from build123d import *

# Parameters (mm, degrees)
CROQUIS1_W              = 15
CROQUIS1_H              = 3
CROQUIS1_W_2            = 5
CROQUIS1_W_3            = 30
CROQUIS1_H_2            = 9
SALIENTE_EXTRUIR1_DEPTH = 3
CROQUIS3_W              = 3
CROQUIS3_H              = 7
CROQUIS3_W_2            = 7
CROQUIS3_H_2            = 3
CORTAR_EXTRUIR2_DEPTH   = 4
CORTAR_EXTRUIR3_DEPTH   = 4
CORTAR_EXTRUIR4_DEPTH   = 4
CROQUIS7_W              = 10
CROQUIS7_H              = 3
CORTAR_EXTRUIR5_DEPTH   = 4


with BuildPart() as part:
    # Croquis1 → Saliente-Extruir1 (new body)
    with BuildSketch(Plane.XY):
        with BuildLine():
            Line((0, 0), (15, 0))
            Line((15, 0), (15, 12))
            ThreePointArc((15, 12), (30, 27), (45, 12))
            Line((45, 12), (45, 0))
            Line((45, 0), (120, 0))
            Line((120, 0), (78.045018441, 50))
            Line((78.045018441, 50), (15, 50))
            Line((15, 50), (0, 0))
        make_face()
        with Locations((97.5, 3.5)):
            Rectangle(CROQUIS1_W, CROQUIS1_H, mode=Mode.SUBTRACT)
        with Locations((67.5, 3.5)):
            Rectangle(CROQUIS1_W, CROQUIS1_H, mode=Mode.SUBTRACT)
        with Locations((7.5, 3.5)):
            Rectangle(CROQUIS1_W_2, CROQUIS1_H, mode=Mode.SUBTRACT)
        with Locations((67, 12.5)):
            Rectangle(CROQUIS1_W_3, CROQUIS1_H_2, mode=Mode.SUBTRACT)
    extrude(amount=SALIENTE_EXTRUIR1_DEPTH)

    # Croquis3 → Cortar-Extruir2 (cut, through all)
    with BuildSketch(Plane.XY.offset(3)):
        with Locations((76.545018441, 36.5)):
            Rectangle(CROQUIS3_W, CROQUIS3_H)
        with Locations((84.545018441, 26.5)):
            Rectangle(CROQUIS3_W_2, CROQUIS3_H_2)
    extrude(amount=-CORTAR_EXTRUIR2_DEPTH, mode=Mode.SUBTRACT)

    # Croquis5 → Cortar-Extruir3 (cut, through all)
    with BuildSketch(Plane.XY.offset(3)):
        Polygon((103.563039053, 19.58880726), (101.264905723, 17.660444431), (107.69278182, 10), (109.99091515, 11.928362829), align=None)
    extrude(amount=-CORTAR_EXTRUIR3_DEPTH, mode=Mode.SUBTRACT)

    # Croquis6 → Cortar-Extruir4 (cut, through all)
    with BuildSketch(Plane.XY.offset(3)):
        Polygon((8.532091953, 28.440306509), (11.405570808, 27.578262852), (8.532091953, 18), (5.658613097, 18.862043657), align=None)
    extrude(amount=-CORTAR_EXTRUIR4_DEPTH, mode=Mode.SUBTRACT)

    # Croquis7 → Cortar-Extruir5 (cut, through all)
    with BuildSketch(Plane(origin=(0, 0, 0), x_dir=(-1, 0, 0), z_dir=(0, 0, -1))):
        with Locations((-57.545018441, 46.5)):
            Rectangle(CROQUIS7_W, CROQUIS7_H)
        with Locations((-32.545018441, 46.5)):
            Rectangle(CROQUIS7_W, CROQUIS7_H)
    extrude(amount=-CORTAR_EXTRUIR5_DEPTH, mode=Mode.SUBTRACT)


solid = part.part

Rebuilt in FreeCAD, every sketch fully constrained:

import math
import FreeCAD as App
import Part
import Sketcher

V = App.Vector
Q = App.Units.Quantity


def add_polygon(sketch, points):
    """Adds a closed chain of lines whose ends are joined by coincident constraints."""
    first, n = sketch.GeometryCount, len(points)
    for a, b in zip(points, points[1:] + points[:1]):
        sketch.addGeometry(Part.LineSegment(App.Vector(*a, 0), App.Vector(*b, 0)), False)
    for i in range(n):
        sketch.addConstraint(Sketcher.Constraint("Coincident", first + i, 2, first + (i + 1) % n, 1))

doc = App.newDocument("Part")
params = doc.addObject("Spreadsheet::Sheet", "Params")
for row, (alias, value) in enumerate([
    ("sketch1_radius", "15 mm"),
    ("sketch1_width", "15 mm"),
    ("sketch1_width2", "75 mm"),
    ("sketch1_width3", "5 mm"),
    ("sketch1_width4", "30 mm"),
    ("pad1_length", "3 mm"),
    ("sketch2_width", "3 mm"),
    ("sketch2_width2", "7 mm"),
    ("sketch3_length", "3 mm"),
    ("sketch3_length2", "10 mm"),
    ("sketch4_length", "3 mm"),
    ("sketch4_length2", "10 mm"),
    ("sketch5_width", "10 mm"),
    ("sketch5_height", "3 mm"),
], start=1):
    params.set(f"A{row}", alias)
    params.set(f"B{row}", "=" + value)
    params.setAlias(f"B{row}", alias)

body = doc.addObject("PartDesign::Body", "Body")

sketch1 = body.newObject("Sketcher::SketchObject", "Sketch")
sketch1.AttachmentSupport = (doc.getObject("XY_Plane"), [""])
sketch1.MapMode = "FlatFace"
sketch1.addGeometry(Part.LineSegment(V(0, 0, 0), V(15, 0, 0)), False)
sketch1.addGeometry(Part.LineSegment(V(15, 0, 0), V(15, 12, 0)), False)
sketch1.addGeometry(Part.ArcOfCircle(Part.Circle(V(30, 12, 0), V(0, 0, 1), 15), math.radians(0), math.radians(180)), False)
sketch1.addGeometry(Part.LineSegment(V(45, 12, 0), V(45, 0, 0)), False)
sketch1.addGeometry(Part.LineSegment(V(45, 0, 0), V(120, 0, 0)), False)
sketch1.addGeometry(Part.LineSegment(V(120, 0, 0), V(78, 50, 0)), False)
sketch1.addGeometry(Part.LineSegment(V(78, 50, 0), V(15, 50, 0)), False)
sketch1.addGeometry(Part.LineSegment(V(15, 50, 0), V(0, 0, 0)), False)
add_polygon(sketch1, [(10, 2), (5, 2), (5, 5), (10, 5)])
add_polygon(sketch1, [(75, 2), (60, 2), (60, 5), (75, 5)])
add_polygon(sketch1, [(105, 2), (90, 2), (90, 5), (105, 5)])
add_polygon(sketch1, [(82, 8), (52, 8), (52, 17), (82, 17)])
sketch1.addConstraint([
    Sketcher.Constraint("Coincident", 0, 2, 1, 1),
    Sketcher.Constraint("Tangent", 1, 2, 2, 2),
    Sketcher.Constraint("Tangent", 2, 1, 3, 1),
    Sketcher.Constraint("Coincident", 3, 2, 4, 1),
    Sketcher.Constraint("Coincident", 4, 2, 5, 1),
    Sketcher.Constraint("Coincident", 5, 2, 6, 1),
    Sketcher.Constraint("Coincident", 6, 2, 7, 1),
    Sketcher.Constraint("Coincident", 7, 2, 0, 1),
    Sketcher.Constraint("Horizontal", 0),
    Sketcher.Constraint("Vertical", 1),
    Sketcher.Constraint("Vertical", 3),
    Sketcher.Constraint("Horizontal", 4),
    Sketcher.Constraint("Horizontal", 6),
    Sketcher.Constraint("Horizontal", 8),
    Sketcher.Constraint("Vertical", 9),
    Sketcher.Constraint("Horizontal", 10),
    Sketcher.Constraint("Vertical", 11),
    Sketcher.Constraint("Horizontal", 12),
    Sketcher.Constraint("Vertical", 13),
    Sketcher.Constraint("Horizontal", 14),
    Sketcher.Constraint("Vertical", 15),
    Sketcher.Constraint("Horizontal", 16),
    Sketcher.Constraint("Vertical", 17),
    Sketcher.Constraint("Horizontal", 18),
    Sketcher.Constraint("Vertical", 19),
    Sketcher.Constraint("Horizontal", 20),
    Sketcher.Constraint("Vertical", 21),
    Sketcher.Constraint("Horizontal", 22),
    Sketcher.Constraint("Vertical", 23),
    Sketcher.Constraint("Coincident", 7, 2, -1, 1),
    Sketcher.Constraint("PointOnObject", 3, 2, -1),
    Sketcher.Constraint("Horizontal", 11, 2, 12, 2),
    Sketcher.Constraint("Horizontal", 10, 2, 13, 2),
    Sketcher.Constraint("Horizontal", 15, 2, 16, 2),
    Sketcher.Constraint("Horizontal", 14, 2, 17, 2),
    Sketcher.Constraint("Vertical", 1, 2, 6, 2),
    Sketcher.Constraint("Equal", 0, 12),
    Sketcher.Constraint("Equal", 14, 16),
    Sketcher.Constraint("Radius", 2, Q("15 mm")),
    Sketcher.Constraint("DistanceX", 0, 1, 0, 2, Q("15 mm")),
    Sketcher.Constraint("DistanceX", 4, 1, 4, 2, Q("75 mm")),
    Sketcher.Constraint("DistanceX", 8, 2, 8, 1, Q("5 mm")),
    Sketcher.Constraint("DistanceX", 20, 2, 20, 1, Q("30 mm")),
    Sketcher.Constraint("DistanceY", 1, 1, 1, 2, Q("12 mm")),
    Sketcher.Constraint("DistanceY", 9, 1, 9, 2, Q("3 mm")),
    Sketcher.Constraint("DistanceY", 21, 1, 21, 2, Q("9 mm")),
    Sketcher.Constraint("Angle", 5, Q("130 deg")),
    Sketcher.Constraint("DistanceY", -1, 1, 5, 2, Q("50 mm")),
    Sketcher.Constraint("DistanceX", -1, 1, 8, 2, Q("5 mm")),
    Sketcher.Constraint("DistanceY", -1, 1, 8, 2, Q("2 mm")),
    Sketcher.Constraint("DistanceX", -1, 1, 12, 2, Q("60 mm")),
    Sketcher.Constraint("DistanceX", -1, 1, 16, 2, Q("90 mm")),
    Sketcher.Constraint("DistanceX", -1, 1, 20, 2, Q("52 mm")),
    Sketcher.Constraint("DistanceY", -1, 1, 20, 2, Q("8 mm")),
])
sketch1.setExpression("Constraints[54]", "Params.sketch1_radius")
sketch1.setExpression("Constraints[55]", "Params.sketch1_width")
sketch1.setExpression("Constraints[56]", "Params.sketch1_width2")
sketch1.setExpression("Constraints[57]", "Params.sketch1_width3")
sketch1.setExpression("Constraints[58]", "Params.sketch1_width4")
pad1 = body.newObject("PartDesign::Pad", "Pad")
pad1.Profile = sketch1
pad1.setExpression("Length", "Params.pad1_length")

sketch2 = body.newObject("Sketcher::SketchObject", "Sketch001")
sketch2.AttachmentSupport = (doc.getObject("XY_Plane"), [""])
sketch2.MapMode = "FlatFace"
sketch2.AttachmentOffset = App.Placement(V(0, 0, 3), App.Rotation())
add_polygon(sketch2, [(75, 40), (75, 33), (78, 33), (78, 40)])
add_polygon(sketch2, [(81, 28), (81, 25), (88, 25), (88, 28)])
sketch2.addConstraint([
    Sketcher.Constraint("Vertical", 0),
    Sketcher.Constraint("Horizontal", 1),
    Sketcher.Constraint("Vertical", 2),
    Sketcher.Constraint("Horizontal", 3),
    Sketcher.Constraint("Vertical", 4),
    Sketcher.Constraint("Horizontal", 5),
    Sketcher.Constraint("Vertical", 6),
    Sketcher.Constraint("Horizontal", 7),
    Sketcher.Constraint("Equal", 7, 0),
    Sketcher.Constraint("Equal", 3, 4),
    Sketcher.Constraint("DistanceX", 1, 1, 1, 2, Q("3 mm")),
    Sketcher.Constraint("DistanceX", 5, 1, 5, 2, Q("7 mm")),
    Sketcher.Constraint("DistanceY", -1, 1, 0, 2, Q("33 mm")),
    Sketcher.Constraint("DistanceY", -1, 1, 4, 2, Q("25 mm")),
    Sketcher.Constraint("DistanceX", 1, 2, 4, 2, Q("3 mm")),
    Sketcher.Constraint("DistanceX", -1, 1, 0, 2, Q("75.045018 mm")),
])
sketch2.setExpression("Constraints[18]", "Params.sketch2_width")
sketch2.setExpression("Constraints[19]", "Params.sketch2_width2")
pocket1 = body.newObject("PartDesign::Pocket", "Pocket")
pocket1.Profile = sketch2
pocket1.Type = "ThroughAll"

sketch3 = body.newObject("Sketcher::SketchObject", "Sketch002")
sketch3.AttachmentSupport = (doc.getObject("XY_Plane"), [""])
sketch3.MapMode = "FlatFace"
sketch3.AttachmentOffset = App.Placement(V(0, 0, 3), App.Rotation())
add_polygon(sketch3, [(103.6, 19.6), (101.3, 17.7), (107.7, 10), (110, 11.9)])
sketch3.addConstraint([
    Sketcher.Constraint("Perpendicular", 0, 1),
    Sketcher.Constraint("Perpendicular", 1, 2),
    Sketcher.Constraint("Perpendicular", 2, 3),
    Sketcher.Constraint("Angle", 0, Q("-140 deg")),
    Sketcher.Constraint("Distance", 0, Q("3 mm")),
    Sketcher.Constraint("Distance", 1, Q("10 mm")),
    Sketcher.Constraint("DistanceY", -1, 1, 1, 2, Q("10 mm")),
    Sketcher.Constraint("DistanceX", -1, 1, 1, 2, Q("107.692782 mm")),
])
sketch3.setExpression("Constraints[8]", "Params.sketch3_length")
sketch3.setExpression("Constraints[9]", "Params.sketch3_length2")
pocket2 = body.newObject("PartDesign::Pocket", "Pocket001")
pocket2.Profile = sketch3
pocket2.Type = "ThroughAll"

sketch4 = body.newObject("Sketcher::SketchObject", "Sketch003")
sketch4.AttachmentSupport = (doc.getObject("XY_Plane"), [""])
sketch4.MapMode = "FlatFace"
sketch4.AttachmentOffset = App.Placement(V(0, 0, 3), App.Rotation())
add_polygon(sketch4, [(11.4, 27.6), (8.5, 28.4), (5.7, 18.9), (8.5, 18)])
sketch4.addConstraint([
    Sketcher.Constraint("Perpendicular", 0, 1),
    Sketcher.Constraint("Perpendicular", 1, 2),
    Sketcher.Constraint("Perpendicular", 2, 3),
    Sketcher.Constraint("Vertical", 0, 2, 2, 2),
    Sketcher.Constraint("Distance", 0, Q("3 mm")),
    Sketcher.Constraint("Distance", 1, Q("10 mm")),
    Sketcher.Constraint("DistanceY", -1, 1, 2, 2, Q("18 mm")),
    Sketcher.Constraint("DistanceX", -1, 1, 0, 2, Q("8.532092 mm")),
])
sketch4.setExpression("Constraints[8]", "Params.sketch4_length")
sketch4.setExpression("Constraints[9]", "Params.sketch4_length2")
pocket3 = body.newObject("PartDesign::Pocket", "Pocket002")
pocket3.Profile = sketch4
pocket3.Type = "ThroughAll"

sketch5 = body.newObject("Sketcher::SketchObject", "Sketch004")
sketch5.AttachmentSupport = (doc.getObject("XY_Plane"), [""])
sketch5.MapMode = "FlatFace"
add_polygon(sketch5, [(62.5, 48), (62.5, 45), (52.5, 45), (52.5, 48)])
add_polygon(sketch5, [(37.5, 48), (37.5, 45), (27.5, 45), (27.5, 48)])
sketch5.addConstraint([
    Sketcher.Constraint("Vertical", 0),
    Sketcher.Constraint("Horizontal", 1),
    Sketcher.Constraint("Vertical", 2),
    Sketcher.Constraint("Horizontal", 3),
    Sketcher.Constraint("Vertical", 4),
    Sketcher.Constraint("Horizontal", 5),
    Sketcher.Constraint("Vertical", 6),
    Sketcher.Constraint("Horizontal", 7),
    Sketcher.Constraint("Horizontal", 1, 2, 4, 2),
    Sketcher.Constraint("Horizontal", 3, 2, 6, 2),
    Sketcher.Constraint("Equal", 3, 5),
    Sketcher.Constraint("DistanceX", 1, 2, 1, 1, Q("10 mm")),
    Sketcher.Constraint("DistanceY", 0, 2, 0, 1, Q("3 mm")),
    Sketcher.Constraint("DistanceY", -1, 1, 0, 2, Q("45 mm")),
    Sketcher.Constraint("DistanceX", 4, 2, 1, 2, Q("15 mm")),
    Sketcher.Constraint("DistanceX", -1, 1, 0, 2, Q("62.545018 mm")),
])
sketch5.setExpression("Constraints[19]", "Params.sketch5_width")
sketch5.setExpression("Constraints[20]", "Params.sketch5_height")
pocket4 = body.newObject("PartDesign::Pocket", "Pocket003")
pocket4.Profile = sketch5
pocket4.Type = "ThroughAll"
pocket4.Reversed = True

doc.recompute()
